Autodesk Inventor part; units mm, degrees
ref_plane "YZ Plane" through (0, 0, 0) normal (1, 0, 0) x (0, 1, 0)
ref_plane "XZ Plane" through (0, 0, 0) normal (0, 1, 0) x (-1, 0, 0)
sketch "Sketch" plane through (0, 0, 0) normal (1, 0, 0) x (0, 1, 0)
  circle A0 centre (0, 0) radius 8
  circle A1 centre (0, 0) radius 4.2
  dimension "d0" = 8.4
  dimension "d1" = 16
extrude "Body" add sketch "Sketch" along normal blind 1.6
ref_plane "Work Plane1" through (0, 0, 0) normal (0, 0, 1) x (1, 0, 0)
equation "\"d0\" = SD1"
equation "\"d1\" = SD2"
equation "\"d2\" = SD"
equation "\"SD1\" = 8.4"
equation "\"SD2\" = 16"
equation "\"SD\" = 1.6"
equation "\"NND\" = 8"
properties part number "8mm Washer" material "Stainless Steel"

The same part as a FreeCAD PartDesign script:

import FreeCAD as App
import Part
import Sketcher

V = App.Vector
Q = App.Units.Quantity

doc = App.newDocument("Part")
body = doc.addObject("PartDesign::Body", "Body")

# Sketch on YZ plane
sketch1 = body.newObject("Sketcher::SketchObject", "Sketch")
sketch1.AttachmentSupport = (doc.getObject("YZ_Plane"), [""])
sketch1.MapMode = "FlatFace"
sketch1.addGeometry([
    Part.Circle(V(0, 0, 0), V(0, 0, 1), 8),
    Part.Circle(V(0, 0, 0), V(0, 0, 1), 4.2),
], False)
sketch1.addConstraint([
    Sketcher.Constraint("Coincident", 0, 3, -1, 1),
    Sketcher.Constraint("Coincident", 1, 3, -1, 1),
    Sketcher.Constraint("Diameter", 0, Q("16 mm")),
    Sketcher.Constraint("Diameter", 1, Q("8.4 mm")),
])
pad1 = body.newObject("PartDesign::Pad", "Pad")
pad1.Profile = sketch1
pad1.Length = 1.6

doc.recompute()
